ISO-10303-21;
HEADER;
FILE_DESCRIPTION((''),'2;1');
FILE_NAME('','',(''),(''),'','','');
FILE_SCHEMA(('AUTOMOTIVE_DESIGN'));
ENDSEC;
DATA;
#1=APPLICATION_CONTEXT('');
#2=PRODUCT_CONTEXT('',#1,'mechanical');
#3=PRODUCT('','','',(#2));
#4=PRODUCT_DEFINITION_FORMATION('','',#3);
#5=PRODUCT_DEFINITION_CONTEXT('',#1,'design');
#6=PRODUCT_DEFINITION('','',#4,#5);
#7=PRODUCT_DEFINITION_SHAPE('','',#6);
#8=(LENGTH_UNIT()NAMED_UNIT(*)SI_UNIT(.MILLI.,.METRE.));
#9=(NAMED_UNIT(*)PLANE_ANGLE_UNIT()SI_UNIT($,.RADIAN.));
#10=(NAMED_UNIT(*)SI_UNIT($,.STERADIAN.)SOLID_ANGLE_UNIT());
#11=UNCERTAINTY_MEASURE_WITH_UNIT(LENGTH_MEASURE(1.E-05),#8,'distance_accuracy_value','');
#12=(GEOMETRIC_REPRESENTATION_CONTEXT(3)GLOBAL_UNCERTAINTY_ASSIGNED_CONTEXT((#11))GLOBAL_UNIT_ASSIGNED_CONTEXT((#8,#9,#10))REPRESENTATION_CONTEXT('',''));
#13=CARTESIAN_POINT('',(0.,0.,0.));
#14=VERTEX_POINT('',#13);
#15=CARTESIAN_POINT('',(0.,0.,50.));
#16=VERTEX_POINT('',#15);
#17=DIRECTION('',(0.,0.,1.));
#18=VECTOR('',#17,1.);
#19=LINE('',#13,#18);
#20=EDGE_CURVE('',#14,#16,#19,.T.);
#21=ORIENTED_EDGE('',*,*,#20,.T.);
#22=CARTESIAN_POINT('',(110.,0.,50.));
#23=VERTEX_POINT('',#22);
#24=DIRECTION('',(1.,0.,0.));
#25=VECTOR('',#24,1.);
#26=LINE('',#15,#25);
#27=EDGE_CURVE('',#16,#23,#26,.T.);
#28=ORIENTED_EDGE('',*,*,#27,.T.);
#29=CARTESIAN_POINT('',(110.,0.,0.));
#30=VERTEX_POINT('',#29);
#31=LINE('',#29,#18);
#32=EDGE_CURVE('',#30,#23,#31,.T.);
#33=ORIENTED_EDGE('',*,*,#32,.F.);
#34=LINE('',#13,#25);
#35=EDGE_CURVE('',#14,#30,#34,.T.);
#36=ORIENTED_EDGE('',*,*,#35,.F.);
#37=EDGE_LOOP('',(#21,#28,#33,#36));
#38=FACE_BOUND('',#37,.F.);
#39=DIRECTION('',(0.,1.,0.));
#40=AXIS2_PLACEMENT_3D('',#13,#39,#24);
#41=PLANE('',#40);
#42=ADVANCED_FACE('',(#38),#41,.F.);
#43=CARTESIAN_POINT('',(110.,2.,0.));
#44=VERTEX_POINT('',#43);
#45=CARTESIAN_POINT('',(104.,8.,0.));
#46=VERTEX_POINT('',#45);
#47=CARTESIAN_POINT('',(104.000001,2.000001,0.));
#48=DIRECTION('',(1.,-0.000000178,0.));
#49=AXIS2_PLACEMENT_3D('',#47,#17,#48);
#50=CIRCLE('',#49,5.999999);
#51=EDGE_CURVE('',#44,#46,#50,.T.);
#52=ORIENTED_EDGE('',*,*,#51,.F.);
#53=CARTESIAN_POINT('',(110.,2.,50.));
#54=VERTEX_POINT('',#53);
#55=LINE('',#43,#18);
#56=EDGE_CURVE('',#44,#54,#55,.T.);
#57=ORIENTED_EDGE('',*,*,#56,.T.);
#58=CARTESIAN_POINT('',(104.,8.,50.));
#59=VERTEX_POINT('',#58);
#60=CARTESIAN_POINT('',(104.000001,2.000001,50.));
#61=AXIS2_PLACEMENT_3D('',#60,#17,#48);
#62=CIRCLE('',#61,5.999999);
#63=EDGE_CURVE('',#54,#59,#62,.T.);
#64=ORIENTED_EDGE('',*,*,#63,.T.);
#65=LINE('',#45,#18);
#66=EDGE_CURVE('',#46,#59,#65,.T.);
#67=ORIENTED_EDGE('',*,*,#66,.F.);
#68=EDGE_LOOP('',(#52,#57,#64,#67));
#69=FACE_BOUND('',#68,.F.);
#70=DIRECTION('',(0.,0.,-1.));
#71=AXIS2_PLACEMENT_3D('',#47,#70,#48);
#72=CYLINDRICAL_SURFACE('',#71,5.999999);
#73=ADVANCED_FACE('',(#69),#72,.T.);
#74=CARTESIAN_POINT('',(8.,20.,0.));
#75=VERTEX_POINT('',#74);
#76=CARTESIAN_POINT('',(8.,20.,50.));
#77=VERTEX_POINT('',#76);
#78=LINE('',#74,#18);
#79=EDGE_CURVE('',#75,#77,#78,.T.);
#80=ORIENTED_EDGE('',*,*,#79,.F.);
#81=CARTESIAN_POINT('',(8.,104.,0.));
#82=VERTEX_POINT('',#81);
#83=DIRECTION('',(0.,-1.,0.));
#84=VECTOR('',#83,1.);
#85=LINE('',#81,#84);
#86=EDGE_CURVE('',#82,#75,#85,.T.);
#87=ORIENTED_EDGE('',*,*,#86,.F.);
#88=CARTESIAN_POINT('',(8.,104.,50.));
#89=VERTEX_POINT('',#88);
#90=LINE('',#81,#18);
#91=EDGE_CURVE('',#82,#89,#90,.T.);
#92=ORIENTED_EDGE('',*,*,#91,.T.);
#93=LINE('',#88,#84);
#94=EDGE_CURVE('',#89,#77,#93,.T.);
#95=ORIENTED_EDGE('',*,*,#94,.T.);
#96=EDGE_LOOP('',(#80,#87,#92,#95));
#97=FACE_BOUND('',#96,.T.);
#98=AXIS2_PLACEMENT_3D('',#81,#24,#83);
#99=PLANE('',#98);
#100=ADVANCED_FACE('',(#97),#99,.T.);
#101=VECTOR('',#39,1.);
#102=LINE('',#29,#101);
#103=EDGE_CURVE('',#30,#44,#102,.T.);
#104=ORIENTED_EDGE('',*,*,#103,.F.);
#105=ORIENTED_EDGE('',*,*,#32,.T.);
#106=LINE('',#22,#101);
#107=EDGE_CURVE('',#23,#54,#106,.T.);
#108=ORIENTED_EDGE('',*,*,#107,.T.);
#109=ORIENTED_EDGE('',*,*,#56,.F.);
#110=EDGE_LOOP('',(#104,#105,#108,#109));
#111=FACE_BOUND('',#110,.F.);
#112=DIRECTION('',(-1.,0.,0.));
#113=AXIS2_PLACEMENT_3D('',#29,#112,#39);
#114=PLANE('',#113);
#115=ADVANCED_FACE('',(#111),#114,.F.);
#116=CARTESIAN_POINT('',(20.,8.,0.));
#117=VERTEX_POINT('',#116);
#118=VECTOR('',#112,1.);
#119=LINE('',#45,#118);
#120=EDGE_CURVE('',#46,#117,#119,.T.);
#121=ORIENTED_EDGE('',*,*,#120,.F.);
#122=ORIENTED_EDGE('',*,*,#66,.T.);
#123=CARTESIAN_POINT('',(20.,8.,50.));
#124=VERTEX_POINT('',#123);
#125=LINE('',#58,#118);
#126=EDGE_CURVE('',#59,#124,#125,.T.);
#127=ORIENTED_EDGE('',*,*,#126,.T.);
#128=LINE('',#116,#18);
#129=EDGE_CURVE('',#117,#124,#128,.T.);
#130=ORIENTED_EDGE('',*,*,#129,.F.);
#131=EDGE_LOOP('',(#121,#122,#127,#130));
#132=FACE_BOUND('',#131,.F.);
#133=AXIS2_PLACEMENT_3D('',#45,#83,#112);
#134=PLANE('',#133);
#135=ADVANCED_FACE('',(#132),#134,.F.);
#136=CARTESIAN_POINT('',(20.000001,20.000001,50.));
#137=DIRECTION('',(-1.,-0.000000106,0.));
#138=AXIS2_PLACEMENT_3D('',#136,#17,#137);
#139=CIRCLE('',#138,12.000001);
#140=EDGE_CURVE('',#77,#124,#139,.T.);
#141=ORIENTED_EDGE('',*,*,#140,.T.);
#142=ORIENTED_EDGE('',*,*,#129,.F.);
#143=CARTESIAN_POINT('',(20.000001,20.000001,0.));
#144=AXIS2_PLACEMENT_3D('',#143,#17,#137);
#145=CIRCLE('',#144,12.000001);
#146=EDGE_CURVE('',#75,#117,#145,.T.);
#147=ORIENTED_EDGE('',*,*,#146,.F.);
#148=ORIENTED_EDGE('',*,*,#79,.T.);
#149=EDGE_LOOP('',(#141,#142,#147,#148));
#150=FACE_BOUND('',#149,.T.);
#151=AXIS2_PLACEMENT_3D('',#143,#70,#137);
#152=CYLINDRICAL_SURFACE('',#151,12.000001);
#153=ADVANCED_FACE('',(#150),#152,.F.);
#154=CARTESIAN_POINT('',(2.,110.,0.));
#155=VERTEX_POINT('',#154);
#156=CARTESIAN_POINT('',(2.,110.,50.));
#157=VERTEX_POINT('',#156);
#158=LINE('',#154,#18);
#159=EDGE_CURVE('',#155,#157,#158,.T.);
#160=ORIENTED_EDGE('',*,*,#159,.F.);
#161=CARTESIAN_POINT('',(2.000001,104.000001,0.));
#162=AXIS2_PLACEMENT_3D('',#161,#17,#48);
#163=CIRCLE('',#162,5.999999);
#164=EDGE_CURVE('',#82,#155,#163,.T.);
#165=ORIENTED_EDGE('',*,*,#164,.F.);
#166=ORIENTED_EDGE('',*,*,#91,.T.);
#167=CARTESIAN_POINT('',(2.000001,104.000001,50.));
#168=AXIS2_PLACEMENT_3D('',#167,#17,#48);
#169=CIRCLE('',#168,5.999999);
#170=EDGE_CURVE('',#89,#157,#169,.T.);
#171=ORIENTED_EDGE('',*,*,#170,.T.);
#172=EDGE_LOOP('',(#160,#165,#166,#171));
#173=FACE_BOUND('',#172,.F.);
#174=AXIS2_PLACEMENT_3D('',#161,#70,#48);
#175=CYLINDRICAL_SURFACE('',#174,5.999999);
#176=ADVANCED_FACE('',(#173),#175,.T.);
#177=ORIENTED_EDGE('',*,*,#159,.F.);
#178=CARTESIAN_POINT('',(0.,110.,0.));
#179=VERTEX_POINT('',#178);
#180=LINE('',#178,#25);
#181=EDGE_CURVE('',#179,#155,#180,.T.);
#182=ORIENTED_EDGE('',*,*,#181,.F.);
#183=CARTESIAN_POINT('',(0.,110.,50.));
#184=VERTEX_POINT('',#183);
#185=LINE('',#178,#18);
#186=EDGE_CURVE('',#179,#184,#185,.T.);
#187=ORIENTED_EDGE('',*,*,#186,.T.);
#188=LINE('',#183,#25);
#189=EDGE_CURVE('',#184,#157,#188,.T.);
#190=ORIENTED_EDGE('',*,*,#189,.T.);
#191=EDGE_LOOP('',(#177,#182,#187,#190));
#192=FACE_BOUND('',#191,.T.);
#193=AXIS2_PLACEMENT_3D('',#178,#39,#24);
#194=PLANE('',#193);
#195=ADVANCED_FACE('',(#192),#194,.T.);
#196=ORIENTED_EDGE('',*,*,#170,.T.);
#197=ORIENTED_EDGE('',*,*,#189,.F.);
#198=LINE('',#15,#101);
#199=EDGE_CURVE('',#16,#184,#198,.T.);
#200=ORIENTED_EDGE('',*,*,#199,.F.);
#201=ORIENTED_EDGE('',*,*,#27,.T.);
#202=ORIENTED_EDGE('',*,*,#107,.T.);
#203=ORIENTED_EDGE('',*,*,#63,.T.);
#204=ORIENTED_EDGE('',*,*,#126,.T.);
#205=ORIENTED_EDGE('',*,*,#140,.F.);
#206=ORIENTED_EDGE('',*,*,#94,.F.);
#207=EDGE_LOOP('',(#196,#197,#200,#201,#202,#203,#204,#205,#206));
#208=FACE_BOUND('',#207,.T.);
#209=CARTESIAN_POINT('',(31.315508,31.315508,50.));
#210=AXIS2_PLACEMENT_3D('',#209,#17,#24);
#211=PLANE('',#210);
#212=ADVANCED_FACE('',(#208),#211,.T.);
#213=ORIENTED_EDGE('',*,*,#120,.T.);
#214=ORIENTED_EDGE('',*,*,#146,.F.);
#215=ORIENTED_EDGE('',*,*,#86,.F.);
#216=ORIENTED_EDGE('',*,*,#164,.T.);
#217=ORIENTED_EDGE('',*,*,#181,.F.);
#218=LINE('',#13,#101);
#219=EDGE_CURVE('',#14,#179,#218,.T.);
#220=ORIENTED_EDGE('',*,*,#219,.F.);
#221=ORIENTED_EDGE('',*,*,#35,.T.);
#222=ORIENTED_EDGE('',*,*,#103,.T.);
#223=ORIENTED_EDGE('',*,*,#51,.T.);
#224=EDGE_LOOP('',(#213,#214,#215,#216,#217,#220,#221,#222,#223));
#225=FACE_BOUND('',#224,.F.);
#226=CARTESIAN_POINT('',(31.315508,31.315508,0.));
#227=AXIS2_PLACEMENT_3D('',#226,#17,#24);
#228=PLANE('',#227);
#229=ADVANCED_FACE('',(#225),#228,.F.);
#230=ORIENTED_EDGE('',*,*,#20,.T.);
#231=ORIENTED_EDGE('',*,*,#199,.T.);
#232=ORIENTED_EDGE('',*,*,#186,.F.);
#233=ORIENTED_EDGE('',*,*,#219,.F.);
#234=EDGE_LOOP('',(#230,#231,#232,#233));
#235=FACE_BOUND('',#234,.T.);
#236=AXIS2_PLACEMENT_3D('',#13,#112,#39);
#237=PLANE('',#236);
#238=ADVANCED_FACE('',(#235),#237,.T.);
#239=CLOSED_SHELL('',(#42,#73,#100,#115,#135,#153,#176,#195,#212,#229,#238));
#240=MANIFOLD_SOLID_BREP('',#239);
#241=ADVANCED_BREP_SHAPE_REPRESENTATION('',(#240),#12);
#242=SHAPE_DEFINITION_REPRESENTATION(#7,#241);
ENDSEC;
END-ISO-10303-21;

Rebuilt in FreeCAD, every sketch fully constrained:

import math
import FreeCAD as App
import Part
import Sketcher
Q = App.Units.Quantity

doc = App.newDocument("Part")
body = doc.addObject("PartDesign::Body", "Body")

# Sketch on XY plane
sketch1 = body.newObject("Sketcher::SketchObject", "Sketch")
sketch1.AttachmentSupport = (doc.getObject("XY_Plane"), [""])
sketch1.MapMode = "FlatFace"
sketch1.addGeometry(Part.LineSegment(App.Vector(0, 0, 0), App.Vector(110, 0, 0)), False)
sketch1.addGeometry(Part.LineSegment(App.Vector(110, 0, 0), App.Vector(110, 2, 0)), False)
sketch1.addGeometry(Part.ArcOfCircle(Part.Circle(App.Vector(104.000001, 2.000001, 0), App.Vector(0, 0, 1), 5.999999), math.radians(-0.00001), math.radians(90.00001)), False)
sketch1.addGeometry(Part.LineSegment(App.Vector(104, 8, 0), App.Vector(20, 8, 0)), False)
sketch1.addGeometry(Part.ArcOfCircle(Part.Circle(App.Vector(20.000001, 20.000001, 0), App.Vector(0, 0, 1), 12.000001), math.radians(-179.999994), math.radians(-90.000006)), False)
sketch1.addGeometry(Part.LineSegment(App.Vector(8, 20, 0), App.Vector(8, 104, 0)), False)
sketch1.addGeometry(Part.ArcOfCircle(Part.Circle(App.Vector(2.000001, 104.000001, 0), App.Vector(0, 0, 1), 5.999999), math.radians(-0.00001), math.radians(90.00001)), False)
sketch1.addGeometry(Part.LineSegment(App.Vector(2, 110, 0), App.Vector(0, 110, 0)), False)
sketch1.addGeometry(Part.LineSegment(App.Vector(0, 110, 0), App.Vector(0, 0, 0)), False)
sketch1.addConstraint(Sketcher.Constraint("Coincident", 0, 2, 1, 1))
sketch1.addConstraint(Sketcher.Constraint("Tangent", 1, 2, 2, 1))
sketch1.addConstraint(Sketcher.Constraint("Tangent", 2, 2, 3, 1))
sketch1.addConstraint(Sketcher.Constraint("Tangent", 3, 2, 4, 2))
sketch1.addConstraint(Sketcher.Constraint("Tangent", 4, 1, 5, 1))
sketch1.addConstraint(Sketcher.Constraint("Tangent", 5, 2, 6, 1))
sketch1.addConstraint(Sketcher.Constraint("Tangent", 6, 2, 7, 1))
sketch1.addConstraint(Sketcher.Constraint("Coincident", 7, 2, 8, 1))
sketch1.addConstraint(Sketcher.Constraint("Coincident", 8, 2, 0, 1))
sketch1.addConstraint(Sketcher.Constraint("Horizontal", 0))
sketch1.addConstraint(Sketcher.Constraint("Vertical", 1))
sketch1.addConstraint(Sketcher.Constraint("Horizontal", 3))
sketch1.addConstraint(Sketcher.Constraint("Vertical", 5))
sketch1.addConstraint(Sketcher.Constraint("Horizontal", 7))
sketch1.addConstraint(Sketcher.Constraint("Vertical", 8))
sketch1.addConstraint(Sketcher.Constraint("Coincident", 8, 2, -1, 1))
sketch1.addConstraint(Sketcher.Constraint("Equal", 2, 6))
sketch1.addConstraint(Sketcher.Constraint("Equal", 7, 1))
sketch1.addConstraint(Sketcher.Constraint("Equal", 3, 5))
sketch1.addConstraint(Sketcher.Constraint("Radius", 2, Q("5.999999 mm")))
sketch1.addConstraint(Sketcher.Constraint("Radius", 4, Q("12.000001 mm")))
sketch1.addConstraint(Sketcher.Constraint("DistanceX", 0, 1, 0, 2, Q("110 mm")))
sketch1.addConstraint(Sketcher.Constraint("DistanceX", 3, 2, 3, 1, Q("84 mm")))
pad1 = body.newObject("PartDesign::Pad", "Pad")
pad1.Profile = sketch1
pad1.Length = 50

doc.recompute()
